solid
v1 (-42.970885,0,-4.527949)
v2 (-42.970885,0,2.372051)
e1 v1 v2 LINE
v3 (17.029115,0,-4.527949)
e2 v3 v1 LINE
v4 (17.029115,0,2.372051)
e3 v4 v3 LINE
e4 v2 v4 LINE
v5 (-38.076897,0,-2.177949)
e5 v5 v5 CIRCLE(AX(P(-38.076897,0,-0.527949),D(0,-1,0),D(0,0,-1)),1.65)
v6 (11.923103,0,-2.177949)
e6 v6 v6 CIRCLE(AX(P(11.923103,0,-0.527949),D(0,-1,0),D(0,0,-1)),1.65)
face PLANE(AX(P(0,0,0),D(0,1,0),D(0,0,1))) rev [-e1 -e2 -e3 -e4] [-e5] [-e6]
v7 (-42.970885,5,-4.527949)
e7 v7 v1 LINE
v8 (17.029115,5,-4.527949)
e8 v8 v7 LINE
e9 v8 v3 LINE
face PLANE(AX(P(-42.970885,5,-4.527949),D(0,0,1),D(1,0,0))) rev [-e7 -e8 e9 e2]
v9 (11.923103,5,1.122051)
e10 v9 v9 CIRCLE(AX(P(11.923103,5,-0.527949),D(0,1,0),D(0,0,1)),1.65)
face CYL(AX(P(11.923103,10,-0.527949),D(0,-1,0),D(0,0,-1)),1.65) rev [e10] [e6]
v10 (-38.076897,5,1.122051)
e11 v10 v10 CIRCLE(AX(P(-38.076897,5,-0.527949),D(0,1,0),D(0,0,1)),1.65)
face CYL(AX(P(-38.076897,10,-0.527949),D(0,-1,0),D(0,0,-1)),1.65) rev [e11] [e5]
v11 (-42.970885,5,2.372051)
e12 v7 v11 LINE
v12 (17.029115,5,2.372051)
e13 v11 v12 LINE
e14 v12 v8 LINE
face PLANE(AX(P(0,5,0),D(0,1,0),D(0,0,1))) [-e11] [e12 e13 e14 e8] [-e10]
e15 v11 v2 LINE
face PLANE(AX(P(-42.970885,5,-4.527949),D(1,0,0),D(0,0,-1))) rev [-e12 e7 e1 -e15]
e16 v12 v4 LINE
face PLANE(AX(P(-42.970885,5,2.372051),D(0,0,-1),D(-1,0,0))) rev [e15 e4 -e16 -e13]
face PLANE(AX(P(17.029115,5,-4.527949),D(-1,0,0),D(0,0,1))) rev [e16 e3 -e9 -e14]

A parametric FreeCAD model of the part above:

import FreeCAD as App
import Part
import Sketcher
from FreeCAD import Vector
Q = App.Units.Quantity

doc = App.newDocument("Part")
body = doc.addObject("PartDesign::Body", "Body")

sketch1 = body.newObject("Sketcher::SketchObject", "Sketch")
sketch1.AttachmentSupport = (doc.getObject("XZ_Plane"), [""])
sketch1.MapMode = "FlatFace"
sketch1.addGeometry([
    Part.LineSegment(Vector(-43, -5, 0), Vector(-43, 2, 0)),
    Part.LineSegment(Vector(-43, 2, 0), Vector(17, 2, 0)),
    Part.LineSegment(Vector(17, 2, 0), Vector(17, -5, 0)),
    Part.LineSegment(Vector(17, -5, 0), Vector(-43, -5, 0)),
], False)
sketch1.addConstraint([
    Sketcher.Constraint("Coincident", 0, 2, 1, 1),
    Sketcher.Constraint("Coincident", 1, 2, 2, 1),
    Sketcher.Constraint("Coincident", 2, 2, 3, 1),
    Sketcher.Constraint("Coincident", 3, 2, 0, 1),
    Sketcher.Constraint("Vertical", 0),
    Sketcher.Constraint("Horizontal", 1),
    Sketcher.Constraint("Vertical", 2),
    Sketcher.Constraint("Horizontal", 3),
    Sketcher.Constraint("DistanceX", 1, 1, 1, 2, Q("60 mm")),
    Sketcher.Constraint("DistanceY", 0, 1, 0, 2, Q("6.9 mm")),
    Sketcher.Constraint("DistanceY", -1, 1, 0, 2, Q("2.372051 mm")),
    Sketcher.Constraint("DistanceX", 0, 2, -1, 1, Q("42.970885 mm")),
])
pad1 = body.newObject("PartDesign::Pad", "Pad")
pad1.Profile = sketch1
pad1.Length = 5
pad1.Reversed = True

sketch2 = body.newObject("Sketcher::SketchObject", "Sketch001")
sketch2.AttachmentSupport = (doc.getObject("XZ_Plane"), [""])
sketch2.MapMode = "FlatFace"
sketch2.addGeometry([
    Part.Circle(Vector(11.9, -0.5, 0), Vector(0, 0, 1), 1.6),
    Part.Circle(Vector(-38.1, -0.5, 0), Vector(0, 0, 1), 1.6),
], False)
sketch2.addConstraint([
    Sketcher.Constraint("Equal", 0, 1),
    Sketcher.Constraint("Horizontal", 0, 3, 1, 3),
    Sketcher.Constraint("Diameter", 0, Q("3.3 mm")),
    Sketcher.Constraint("DistanceX", 1, 3, 0, 3, Q("50 mm")),
    Sketcher.Constraint("DistanceY", 0, 3, -1, 1, Q("0.527949 mm")),
    Sketcher.Constraint("DistanceX", -1, 1, 0, 3, Q("11.923103 mm")),
])
pocket1 = body.newObject("PartDesign::Pocket", "Pocket")
pocket1.Profile = sketch2
pocket1.Length = 10

doc.recompute()
